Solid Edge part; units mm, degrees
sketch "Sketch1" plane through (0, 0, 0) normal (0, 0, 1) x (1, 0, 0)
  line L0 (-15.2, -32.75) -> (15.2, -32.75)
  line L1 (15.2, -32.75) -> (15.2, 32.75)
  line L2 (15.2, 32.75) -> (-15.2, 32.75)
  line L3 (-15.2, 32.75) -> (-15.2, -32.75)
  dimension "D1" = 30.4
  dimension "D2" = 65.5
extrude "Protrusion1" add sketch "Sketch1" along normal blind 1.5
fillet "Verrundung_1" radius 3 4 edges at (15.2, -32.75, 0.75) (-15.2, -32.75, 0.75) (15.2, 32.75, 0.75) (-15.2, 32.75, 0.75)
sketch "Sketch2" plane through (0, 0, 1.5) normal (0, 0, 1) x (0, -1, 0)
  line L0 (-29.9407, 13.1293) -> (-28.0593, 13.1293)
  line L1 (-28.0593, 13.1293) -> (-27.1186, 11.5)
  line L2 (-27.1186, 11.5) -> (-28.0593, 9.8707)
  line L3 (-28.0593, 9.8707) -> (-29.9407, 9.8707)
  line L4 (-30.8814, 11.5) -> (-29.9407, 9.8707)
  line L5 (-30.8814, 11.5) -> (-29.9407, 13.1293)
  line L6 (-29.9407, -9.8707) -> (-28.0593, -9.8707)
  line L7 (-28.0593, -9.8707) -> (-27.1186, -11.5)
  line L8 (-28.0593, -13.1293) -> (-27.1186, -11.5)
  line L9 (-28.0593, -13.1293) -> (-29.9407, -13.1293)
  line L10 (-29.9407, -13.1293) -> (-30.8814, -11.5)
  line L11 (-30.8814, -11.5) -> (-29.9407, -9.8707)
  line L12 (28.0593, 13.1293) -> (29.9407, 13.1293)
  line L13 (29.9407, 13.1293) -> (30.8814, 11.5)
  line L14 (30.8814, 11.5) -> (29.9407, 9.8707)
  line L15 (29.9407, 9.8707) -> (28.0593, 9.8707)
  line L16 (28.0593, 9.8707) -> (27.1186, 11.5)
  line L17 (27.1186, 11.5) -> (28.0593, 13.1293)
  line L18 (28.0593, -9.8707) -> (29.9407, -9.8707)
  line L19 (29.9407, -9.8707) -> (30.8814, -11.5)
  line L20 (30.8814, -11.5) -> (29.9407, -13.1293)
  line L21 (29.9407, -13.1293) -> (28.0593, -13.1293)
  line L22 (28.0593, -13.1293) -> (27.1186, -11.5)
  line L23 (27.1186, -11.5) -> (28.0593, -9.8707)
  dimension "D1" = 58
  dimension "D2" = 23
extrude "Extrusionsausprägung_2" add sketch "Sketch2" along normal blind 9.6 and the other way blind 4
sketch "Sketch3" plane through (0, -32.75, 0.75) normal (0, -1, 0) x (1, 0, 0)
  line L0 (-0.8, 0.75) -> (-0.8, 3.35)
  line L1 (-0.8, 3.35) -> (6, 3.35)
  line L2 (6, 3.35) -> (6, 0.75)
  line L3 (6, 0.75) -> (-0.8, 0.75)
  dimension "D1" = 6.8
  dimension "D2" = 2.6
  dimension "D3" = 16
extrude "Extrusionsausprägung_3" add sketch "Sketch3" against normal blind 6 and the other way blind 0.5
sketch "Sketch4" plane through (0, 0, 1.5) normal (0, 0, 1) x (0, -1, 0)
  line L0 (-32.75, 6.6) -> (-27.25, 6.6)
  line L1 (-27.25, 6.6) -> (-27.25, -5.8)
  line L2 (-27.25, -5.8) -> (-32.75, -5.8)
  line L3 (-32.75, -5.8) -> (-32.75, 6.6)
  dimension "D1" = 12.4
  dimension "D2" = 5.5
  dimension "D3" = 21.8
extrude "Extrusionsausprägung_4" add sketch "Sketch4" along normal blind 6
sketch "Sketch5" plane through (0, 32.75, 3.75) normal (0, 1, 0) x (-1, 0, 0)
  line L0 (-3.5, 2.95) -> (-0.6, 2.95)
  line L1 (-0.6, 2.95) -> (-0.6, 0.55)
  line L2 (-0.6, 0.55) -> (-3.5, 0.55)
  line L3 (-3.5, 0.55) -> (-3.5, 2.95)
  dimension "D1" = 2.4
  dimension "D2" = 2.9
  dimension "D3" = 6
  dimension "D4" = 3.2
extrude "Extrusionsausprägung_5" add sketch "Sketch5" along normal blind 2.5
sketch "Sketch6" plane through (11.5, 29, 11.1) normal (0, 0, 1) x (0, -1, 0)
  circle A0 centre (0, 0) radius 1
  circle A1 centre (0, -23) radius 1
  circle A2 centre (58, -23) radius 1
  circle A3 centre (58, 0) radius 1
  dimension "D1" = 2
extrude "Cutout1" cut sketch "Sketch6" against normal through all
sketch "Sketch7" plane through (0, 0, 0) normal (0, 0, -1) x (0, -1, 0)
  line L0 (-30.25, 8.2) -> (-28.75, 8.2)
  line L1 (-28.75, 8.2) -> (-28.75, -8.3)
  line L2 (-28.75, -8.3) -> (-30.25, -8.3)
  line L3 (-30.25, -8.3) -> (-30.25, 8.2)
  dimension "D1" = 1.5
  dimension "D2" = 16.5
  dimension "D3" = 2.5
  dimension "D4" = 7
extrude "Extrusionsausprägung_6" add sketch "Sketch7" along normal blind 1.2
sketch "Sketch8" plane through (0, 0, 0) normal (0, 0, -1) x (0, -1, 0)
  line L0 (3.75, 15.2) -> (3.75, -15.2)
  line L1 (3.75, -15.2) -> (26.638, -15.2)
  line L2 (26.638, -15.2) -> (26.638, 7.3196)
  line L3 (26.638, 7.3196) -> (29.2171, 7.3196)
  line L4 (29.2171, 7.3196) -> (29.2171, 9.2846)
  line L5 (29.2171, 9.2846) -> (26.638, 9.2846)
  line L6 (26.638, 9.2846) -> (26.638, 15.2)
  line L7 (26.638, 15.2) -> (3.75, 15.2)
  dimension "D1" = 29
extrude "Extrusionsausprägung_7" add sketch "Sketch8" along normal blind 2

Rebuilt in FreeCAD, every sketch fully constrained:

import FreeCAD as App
import Part
import Sketcher

V = App.Vector
Q = App.Units.Quantity


def edges_at(feature, points):
    """Names of the edges that pass closest to the given points."""
    edges = feature.Shape.Edges
    near = lambda p: min(range(len(edges)), key=lambda i: edges[i].distToShape(Part.Vertex(*p))[0])
    return sorted({f"Edge{near(p) + 1}" for p in points})

doc = App.newDocument("Part")
body = doc.addObject("PartDesign::Body", "Body")

# Sketch on XY plane
sketch1 = doc.addObject("Sketcher::SketchObject", "Sketch")
body.addObject(sketch1)
sketch1.AttachmentSupport = (doc.XY_Plane, [""])
sketch1.MapMode = "FlatFace"
sketch1.addGeometry([
    Part.LineSegment(V(-15, 33, 0), V(-15, -33, 0)),
    Part.LineSegment(V(-15, -33, 0), V(15, -33, 0)),
    Part.LineSegment(V(15, -33, 0), V(15, 33, 0)),
    Part.LineSegment(V(15, 33, 0), V(-15, 33, 0)),
], False)
sketch1.addConstraint([
    Sketcher.Constraint("Coincident", 0, 2, 1, 1),
    Sketcher.Constraint("Coincident", 1, 2, 2, 1),
    Sketcher.Constraint("Coincident", 2, 2, 3, 1),
    Sketcher.Constraint("Coincident", 3, 2, 0, 1),
    Sketcher.Constraint("Vertical", 0),
    Sketcher.Constraint("Horizontal", 1),
    Sketcher.Constraint("Vertical", 2),
    Sketcher.Constraint("Horizontal", 3),
    Sketcher.Constraint("Symmetric", 0, 2, 2, 2, -1, 1),
    Sketcher.Constraint("DistanceX", 0, 2, -1, 1, 15.2),
    Sketcher.Constraint("DistanceY", 0, 2, 0, 1, 65.5),
])
pad1 = doc.addObject("PartDesign::Pad", "Pad")
body.addObject(pad1)
pad1.Profile = sketch1
pad1.Length = 1.5
doc.recompute()

fillet = doc.addObject("PartDesign::Fillet", "Fillet")
body.addObject(fillet)
fillet.Base = (pad1, edges_at(pad1, [
    (15.2, -32.75, 0.75),
    (-15.2, -32.75, 0.75),
    (15.2, 32.75, 0.75),
    (-15.2, 32.75, 0.75),
]))
fillet.Radius = 3

# Sketch on XY plane
sketch2 = doc.addObject("Sketcher::SketchObject", "Sketch001")
body.addObject(sketch2)
sketch2.AttachmentSupport = (doc.XY_Plane, [""])
sketch2.MapMode = "FlatFace"
sketch2.AttachmentOffset = App.Placement(V(0, 0, 1.5), App.Rotation())
sketch2.addGeometry([
    Part.LineSegment(V(13.1, 28.1, 0), V(13.1, 29.9, 0)),  # 0
    Part.LineSegment(V(13.1, 29.9, 0), V(11.5, 30.9, 0)),  # 1
    Part.LineSegment(V(11.5, 30.9, 0), V(9.9, 29.9, 0)),  # 2
    Part.LineSegment(V(9.9, 29.9, 0), V(9.9, 28.1, 0)),  # 3
    Part.LineSegment(V(9.9, 28.1, 0), V(11.5, 27.1, 0)),  # 4
    Part.LineSegment(V(11.5, 27.1, 0), V(13.1, 28.1, 0)),  # 5
    Part.LineSegment(V(-9.9, 28.1, 0), V(-9.9, 29.9, 0)),  # 6
    Part.LineSegment(V(-9.9, 29.9, 0), V(-11.5, 30.9, 0)),  # 7
    Part.LineSegment(V(-11.5, 30.9, 0), V(-13.1, 29.9, 0)),  # 8
    Part.LineSegment(V(-13.1, 29.9, 0), V(-13.1, 28.1, 0)),  # 9
    Part.LineSegment(V(-13.1, 28.1, 0), V(-11.5, 27.1, 0)),  # 10
    Part.LineSegment(V(-11.5, 27.1, 0), V(-9.9, 28.1, 0)),  # 11
    Part.LineSegment(V(13.1, -29.9, 0), V(13.1, -28.1, 0)),  # 12
    Part.LineSegment(V(13.1, -28.1, 0), V(11.5, -27.1, 0)),  # 13
    Part.LineSegment(V(11.5, -27.1, 0), V(9.9, -28.1, 0)),  # 14
    Part.LineSegment(V(9.9, -28.1, 0), V(9.9, -29.9, 0)),  # 15
    Part.LineSegment(V(9.9, -29.9, 0), V(11.5, -30.9, 0)),  # 16
    Part.LineSegment(V(11.5, -30.9, 0), V(13.1, -29.9, 0)),  # 17
    Part.LineSegment(V(-9.9, -29.9, 0), V(-9.9, -28.1, 0)),  # 18
    Part.LineSegment(V(-9.9, -28.1, 0), V(-11.5, -27.1, 0)),  # 19
    Part.LineSegment(V(-11.5, -27.1, 0), V(-13.1, -28.1, 0)),  # 20
    Part.LineSegment(V(-13.1, -28.1, 0), V(-13.1, -29.9, 0)),  # 21
    Part.LineSegment(V(-13.1, -29.9, 0), V(-11.5, -30.9, 0)),  # 22
    Part.LineSegment(V(-11.5, -30.9, 0), V(-9.9, -29.9, 0)),  # 23
], False)
sketch2.addConstraint([
    Sketcher.Constraint("Coincident", 0, 2, 1, 1),
    Sketcher.Constraint("Coincident", 1, 2, 2, 1),
    Sketcher.Constraint("Coincident", 2, 2, 3, 1),
    Sketcher.Constraint("Coincident", 3, 2, 4, 1),
    Sketcher.Constraint("Coincident", 4, 2, 5, 1),
    Sketcher.Constraint("Coincident", 5, 2, 0, 1),
    Sketcher.Constraint("Coincident", 6, 2, 7, 1),
    Sketcher.Constraint("Coincident", 7, 2, 8, 1),
    Sketcher.Constraint("Coincident", 8, 2, 9, 1),
    Sketcher.Constraint("Coincident", 9, 2, 10, 1),
    Sketcher.Constraint("Coincident", 10, 2, 11, 1),
    Sketcher.Constraint("Coincident", 11, 2, 6, 1),
    Sketcher.Constraint("Coincident", 12, 2, 13, 1),
    Sketcher.Constraint("Coincident", 13, 2, 14, 1),
    Sketcher.Constraint("Coincident", 14, 2, 15, 1),
    Sketcher.Constraint("Coincident", 15, 2, 16, 1),
    Sketcher.Constraint("Coincident", 16, 2, 17, 1),
    Sketcher.Constraint("Coincident", 17, 2, 12, 1),
    Sketcher.Constraint("Coincident", 18, 2, 19, 1),
    Sketcher.Constraint("Coincident", 19, 2, 20, 1),
    Sketcher.Constraint("Coincident", 20, 2, 21, 1),
    Sketcher.Constraint("Coincident", 21, 2, 22, 1),
    Sketcher.Constraint("Coincident", 22, 2, 23, 1),
    Sketcher.Constraint("Coincident", 23, 2, 18, 1),
    Sketcher.Constraint("Vertical", 0),
    Sketcher.Constraint("Vertical", 3),
    Sketcher.Constraint("Vertical", 6),
    Sketcher.Constraint("Vertical", 9),
    Sketcher.Constraint("Vertical", 12),
    Sketcher.Constraint("Vertical", 15),
    Sketcher.Constraint("Vertical", 18),
    Sketcher.Constraint("Vertical", 21),
    Sketcher.Constraint("Symmetric", 9, 2, 12, 2, -1, 1),
    Sketcher.Constraint("Symmetric", 10, 2, 13, 2, -1, 1),
    Sketcher.Constraint("Symmetric", 11, 2, 14, 2, -1, 1),
    Sketcher.Constraint("Symmetric", 7, 2, 16, 2, -1, 1),
    Sketcher.Constraint("Symmetric", 3, 2, 18, 2, -1, 1),
    Sketcher.Constraint("Symmetric", 4, 2, 19, 2, -1, 1),
    Sketcher.Constraint("Symmetric", 5, 2, 20, 2, -1, 1),
    Sketcher.Constraint("Symmetric", 1, 2, 22, 2, -1, 1),
    Sketcher.Constraint("Symmetric", 2, 2, 6, 2, -2),
    Sketcher.Constraint("Symmetric", 1, 2, 7, 2, -2),
    Sketcher.Constraint("Symmetric", 0, 2, 8, 2, -2),
    Sketcher.Constraint("Symmetric", 4, 2, 10, 2, -2),
    Sketcher.Constraint("Parallel", 1, 4),
    Sketcher.Constraint("Parallel", 2, 5),
    Sketcher.Constraint("Parallel", 4, 7),
    Sketcher.Constraint("Parallel", 7, 10),
    Sketcher.Constraint("Parallel", 8, 11),
    Sketcher.Constraint("Parallel", 13, 16),
    Sketcher.Constraint("Parallel", 14, 17),
    Sketcher.Constraint("Parallel", 19, 22),
    Sketcher.Constraint("Parallel", 20, 23),
    Sketcher.Constraint("Horizontal", 0, 2, 2, 2),
    Sketcher.Constraint("Horizontal", 3, 2, 5, 2),
    Sketcher.Constraint("Angle", 1, Q("149.9994 deg")),
    Sketcher.Constraint("DistanceX", 6, 2, 0, 2, 23.0),
    Sketcher.Constraint("DistanceY", 12, 2, 0, 2, 58.0),
    Sketcher.Constraint("DistanceY", 0, 1, 0, 2, 1.8814),
    Sketcher.Constraint("DistanceY", 3, 2, 1, 2, 2.822),
])
pad2 = doc.addObject("PartDesign::Pad", "Pad001")
body.addObject(pad2)
pad2.Profile = sketch2
pad2.Type = "TwoLengths"
pad2.Length = 9.6
pad2.Length2 = 4

# Sketch on XZ plane
sketch3 = doc.addObject("Sketcher::SketchObject", "Sketch002")
body.addObject(sketch3)
sketch3.AttachmentSupport = (doc.XZ_Plane, [""])
sketch3.MapMode = "FlatFace"
sketch3.AttachmentOffset = App.Placement(V(0, 0, 32.75), App.Rotation())
sketch3.addGeometry([
    Part.LineSegment(V(-0.8, 4.1, 0), V(-0.8, 1.5, 0)),
    Part.LineSegment(V(-0.8, 1.5, 0), V(6, 1.5, 0)),
    Part.LineSegment(V(6, 1.5, 0), V(6, 4.1, 0)),
    Part.LineSegment(V(6, 4.1, 0), V(-0.8, 4.1, 0)),
], False)
sketch3.addConstraint([
    Sketcher.Constraint("Coincident", 0, 2, 1, 1),
    Sketcher.Constraint("Coincident", 1, 2, 2, 1),
    Sketcher.Constraint("Coincident", 2, 2, 3, 1),
    Sketcher.Constraint("Coincident", 3, 2, 0, 1),
    Sketcher.Constraint("Vertical", 0),
    Sketcher.Constraint("Horizontal", 1),
    Sketcher.Constraint("Vertical", 2),
    Sketcher.Constraint("Horizontal", 3),
    Sketcher.Constraint("DistanceX", -1, 1, 1, 2, 6.0),
    Sketcher.Constraint("DistanceX", 0, 2, -1, 1, 0.8),
    Sketcher.Constraint("DistanceY", 0, 2, 0, 1, 2.6),
    Sketcher.Constraint("DistanceY", -1, 1, 0, 2, 1.5),
])
pad3 = doc.addObject("PartDesign::Pad", "Pad002")
body.addObject(pad3)
pad3.Profile = sketch3
pad3.Type = "TwoLengths"
pad3.Length = 6
pad3.Length2 = 0.5
pad3.Reversed = True

# Sketch on XY plane
sketch4 = doc.addObject("Sketcher::SketchObject", "Sketch003")
body.addObject(sketch4)
sketch4.AttachmentSupport = (doc.XY_Plane, [""])
sketch4.MapMode = "FlatFace"
sketch4.AttachmentOffset = App.Placement(V(0, 0, 1.5), App.Rotation())
sketch4.addGeometry([
    Part.LineSegment(V(7, 27, 0), V(7, 33, 0)),
    Part.LineSegment(V(7, 33, 0), V(-6, 33, 0)),
    Part.LineSegment(V(-6, 33, 0), V(-6, 27, 0)),
    Part.LineSegment(V(-6, 27, 0), V(7, 27, 0)),
], False)
sketch4.addConstraint([
    Sketcher.Constraint("Coincident", 0, 2, 1, 1),
    Sketcher.Constraint("Coincident", 1, 2, 2, 1),
    Sketcher.Constraint("Coincident", 2, 2, 3, 1),
    Sketcher.Constraint("Coincident", 3, 2, 0, 1),
    Sketcher.Constraint("Vertical", 0),
    Sketcher.Constraint("Horizontal", 1),
    Sketcher.Constraint("Vertical", 2),
    Sketcher.Constraint("Horizontal", 3),
    Sketcher.Constraint("DistanceY", -1, 1, 2, 2, 27.25),
    Sketcher.Constraint("DistanceX", 1, 2, 1, 1, 12.4),
    Sketcher.Constraint("DistanceY", 0, 1, 0, 2, 5.5),
    Sketcher.Constraint("DistanceX", -1, 1, 0, 2, 6.6),
])
pad4 = doc.addObject("PartDesign::Pad", "Pad003")
body.addObject(pad4)
pad4.Profile = sketch4
pad4.Length = 6

# Sketch on XZ plane
sketch5 = doc.addObject("Sketcher::SketchObject", "Sketch004")
body.addObject(sketch5)
sketch5.AttachmentSupport = (doc.XZ_Plane, [""])
sketch5.MapMode = "FlatFace"
sketch5.AttachmentOffset = App.Placement(V(0, 0, -32.75), App.Rotation())
sketch5.addGeometry([
    Part.LineSegment(V(0.6, 6.7, 0), V(3.5, 6.7, 0)),
    Part.LineSegment(V(3.5, 6.7, 0), V(3.5, 4.3, 0)),
    Part.LineSegment(V(3.5, 4.3, 0), V(0.6, 4.3, 0)),
    Part.LineSegment(V(0.6, 4.3, 0), V(0.6, 6.7, 0)),
], False)
sketch5.addConstraint([
    Sketcher.Constraint("Coincident", 0, 2, 1, 1),
    Sketcher.Constraint("Coincident", 1, 2, 2, 1),
    Sketcher.Constraint("Coincident", 2, 2, 3, 1),
    Sketcher.Constraint("Coincident", 3, 2, 0, 1),
    Sketcher.Constraint("Horizontal", 0),
    Sketcher.Constraint("Vertical", 1),
    Sketcher.Constraint("Horizontal", 2),
    Sketcher.Constraint("Vertical", 3),
    Sketcher.Constraint("DistanceX", -1, 1, 0, 2, 3.5),
    Sketcher.Constraint("DistanceX", -1, 1, 2, 2, 0.6),
    Sketcher.Constraint("DistanceY", 1, 2, 1, 1, 2.4),
    Sketcher.Constraint("DistanceY", -1, 1, 0, 2, 6.7),
])
pad5 = doc.addObject("PartDesign::Pad", "Pad004")
body.addObject(pad5)
pad5.Profile = sketch5
pad5.Length = 2.5
pad5.Reversed = True

# Sketch on XY plane
sketch6 = doc.addObject("Sketcher::SketchObject", "Sketch005")
body.addObject(sketch6)
sketch6.AttachmentSupport = (doc.XY_Plane, [""])
sketch6.MapMode = "FlatFace"
sketch6.AttachmentOffset = App.Placement(V(0, 0, 11.1), App.Rotation())
sketch6.addGeometry([
    Part.Circle(V(11.5, 29, 0), V(0, 0, 1), 1),
    Part.Circle(V(-11.5, 29, 0), V(0, 0, 1), 1),
    Part.Circle(V(-11.5, -29, 0), V(0, 0, 1), 1),
    Part.Circle(V(11.5, -29, 0), V(0, 0, 1), 1),
], False)
sketch6.addConstraint([
    Sketcher.Constraint("Equal", 0, 1),
    Sketcher.Constraint("Equal", 1, 2),
    Sketcher.Constraint("Equal", 2, 3),
    Sketcher.Constraint("Symmetric", 0, 3, 2, 3, -1, 1),
    Sketcher.Constraint("Symmetric", 1, 3, 3, 3, -1, 1),
    Sketcher.Constraint("Symmetric", 0, 3, 1, 3, -2),
    Sketcher.Constraint("Diameter", 0, 2.0),
    Sketcher.Constraint("DistanceY", -1, 1, 0, 3, 29.0),
    Sketcher.Constraint("DistanceX", 1, 3, 0, 3, 23.0),
])
pocket1 = doc.addObject("PartDesign::Pocket", "Pocket")
body.addObject(pocket1)
pocket1.Profile = sketch6
pocket1.Type = "ThroughAll"

# Sketch on XY plane
sketch7 = doc.addObject("Sketcher::SketchObject", "Sketch006")
body.addObject(sketch7)
sketch7.AttachmentSupport = (doc.XY_Plane, [""])
sketch7.MapMode = "FlatFace"
sketch7.addGeometry([
    Part.LineSegment(V(-8.2, 28.8, 0), V(-8.2, 30.2, 0)),
    Part.LineSegment(V(-8.2, 30.2, 0), V(8.3, 30.2, 0)),
    Part.LineSegment(V(8.3, 30.2, 0), V(8.3, 28.8, 0)),
    Part.LineSegment(V(8.3, 28.8, 0), V(-8.2, 28.8, 0)),
], False)
sketch7.addConstraint([
    Sketcher.Constraint("Coincident", 0, 2, 1, 1),
    Sketcher.Constraint("Coincident", 1, 2, 2, 1),
    Sketcher.Constraint("Coincident", 2, 2, 3, 1),
    Sketcher.Constraint("Coincident", 3, 2, 0, 1),
    Sketcher.Constraint("Vertical", 0),
    Sketcher.Constraint("Horizontal", 1),
    Sketcher.Constraint("Vertical", 2),
    Sketcher.Constraint("Horizontal", 3),
    Sketcher.Constraint("DistanceY", -1, 1, 0, 2, 30.25),
    Sketcher.Constraint("DistanceY", -1, 1, 2, 2, 28.75),
    Sketcher.Constraint("DistanceX", 1, 1, 1, 2, 16.5),
    Sketcher.Constraint("DistanceX", 0, 2, -1, 1, 8.2),
])
pad6 = doc.addObject("PartDesign::Pad", "Pad005")
body.addObject(pad6)
pad6.Profile = sketch7
pad6.Length = 1.2
pad6.Reversed = True

# Sketch on XY plane
sketch8 = doc.addObject("Sketcher::SketchObject", "Sketch007")
body.addObject(sketch8)
sketch8.AttachmentSupport = (doc.XY_Plane, [""])
sketch8.MapMode = "FlatFace"
sketch8.addGeometry([
    Part.LineSegment(V(-15.2, -26.6, 0), V(-15.2, -3.8, 0)),  # 0
    Part.LineSegment(V(-15.2, -3.8, 0), V(15.2, -3.8, 0)),  # 1
    Part.LineSegment(V(15.2, -3.8, 0), V(15.2, -26.6, 0)),  # 2
    Part.LineSegment(V(15.2, -26.6, 0), V(-7.3, -26.6, 0)),  # 3
    Part.LineSegment(V(-7.3, -26.6, 0), V(-7.3, -29.2, 0)),  # 4
    Part.LineSegment(V(-7.3, -29.2, 0), V(-9.3, -29.2, 0)),  # 5
    Part.LineSegment(V(-9.3, -29.2, 0), V(-9.3, -26.6, 0)),  # 6
    Part.LineSegment(V(-9.3, -26.6, 0), V(-15.2, -26.6, 0)),  # 7
], False)
sketch8.addConstraint([
    Sketcher.Constraint("Coincident", 0, 2, 1, 1),
    Sketcher.Constraint("Coincident", 1, 2, 2, 1),
    Sketcher.Constraint("Coincident", 2, 2, 3, 1),
    Sketcher.Constraint("Coincident", 3, 2, 4, 1),
    Sketcher.Constraint("Coincident", 4, 2, 5, 1),
    Sketcher.Constraint("Coincident", 5, 2, 6, 1),
    Sketcher.Constraint("Coincident", 6, 2, 7, 1),
    Sketcher.Constraint("Coincident", 7, 2, 0, 1),
    Sketcher.Constraint("Vertical", 0),
    Sketcher.Constraint("Horizontal", 1),
    Sketcher.Constraint("Vertical", 2),
    Sketcher.Constraint("Horizontal", 3),
    Sketcher.Constraint("Vertical", 4),
    Sketcher.Constraint("Horizontal", 5),
    Sketcher.Constraint("Vertical", 6),
    Sketcher.Constraint("Horizontal", 7),
    Sketcher.Constraint("Symmetric", 2, 2, 7, 2, -2),
    Sketcher.Constraint("DistanceX", 1, 1, 1, 2, 30.4),
    Sketcher.Constraint("DistanceX", 5, 2, 5, 1, 1.965),
    Sketcher.Constraint("DistanceY", 0, 1, 0, 2, 22.888),
    Sketcher.Constraint("DistanceY", 4, 2, 4, 1, 2.579),
    Sketcher.Constraint("DistanceY", 0, 2, -1, 1, 3.75),
    Sketcher.Constraint("DistanceX", 3, 2, 3, 1, 22.5196),
])
pad7 = doc.addObject("PartDesign::Pad", "Pad006")
body.addObject(pad7)
pad7.Profile = sketch8
pad7.Length = 2
pad7.Reversed = True

doc.recompute()
